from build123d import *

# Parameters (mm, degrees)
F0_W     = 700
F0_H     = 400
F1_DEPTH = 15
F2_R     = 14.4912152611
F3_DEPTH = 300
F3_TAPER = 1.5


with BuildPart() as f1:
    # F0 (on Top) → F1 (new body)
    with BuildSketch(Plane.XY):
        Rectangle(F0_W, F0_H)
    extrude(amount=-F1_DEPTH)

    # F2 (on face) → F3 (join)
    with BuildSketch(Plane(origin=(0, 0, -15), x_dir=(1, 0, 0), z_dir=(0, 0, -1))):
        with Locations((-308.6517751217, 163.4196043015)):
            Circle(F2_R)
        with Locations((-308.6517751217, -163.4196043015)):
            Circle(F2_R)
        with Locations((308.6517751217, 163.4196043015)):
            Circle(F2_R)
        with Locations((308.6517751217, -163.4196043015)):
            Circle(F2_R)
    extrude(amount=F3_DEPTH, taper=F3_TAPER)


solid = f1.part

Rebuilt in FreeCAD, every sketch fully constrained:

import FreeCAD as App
import Part
import Sketcher

V = App.Vector
Q = App.Units.Quantity

doc = App.newDocument("Part")
body = doc.addObject("PartDesign::Body", "Body")

sketch1 = doc.addObject("Sketcher::SketchObject", "Sketch")
body.addObject(sketch1)
sketch1.AttachmentSupport = (doc.XY_Plane, [""])
sketch1.MapMode = "FlatFace"
sketch1.addGeometry([
    Part.LineSegment(V(-350, 200, 0), V(-350, -200, 0)),
    Part.LineSegment(V(-350, -200, 0), V(350, -200, 0)),
    Part.LineSegment(V(350, -200, 0), V(350, 200, 0)),
    Part.LineSegment(V(350, 200, 0), V(-350, 200, 0)),
], False)
sketch1.addConstraint([
    Sketcher.Constraint("Coincident", 0, 2, 1, 1),
    Sketcher.Constraint("Coincident", 1, 2, 2, 1),
    Sketcher.Constraint("Coincident", 2, 2, 3, 1),
    Sketcher.Constraint("Coincident", 3, 2, 0, 1),
    Sketcher.Constraint("Vertical", 0),
    Sketcher.Constraint("Horizontal", 1),
    Sketcher.Constraint("Vertical", 2),
    Sketcher.Constraint("Horizontal", 3),
    Sketcher.Constraint("Symmetric", 0, 2, 2, 2, -1, 1),
    Sketcher.Constraint("DistanceX", 1, 1, 1, 2, Q("700 mm")),
    Sketcher.Constraint("DistanceY", 0, 2, 0, 1, Q("400 mm")),
])
pad1 = doc.addObject("PartDesign::Pad", "Pad")
body.addObject(pad1)
pad1.Profile = sketch1
pad1.Length = 15
pad1.Reversed = True

sketch2 = doc.addObject("Sketcher::SketchObject", "Sketch001")
body.addObject(sketch2)
sketch2.AttachmentSupport = (doc.XY_Plane, [""])
sketch2.MapMode = "FlatFace"
sketch2.AttachmentOffset = App.Placement(V(0, 0, -15), App.Rotation())
sketch2.addGeometry([
    Part.Circle(V(-309, -163, 0), V(0, 0, 1), 14),
    Part.Circle(V(-309, 163, 0), V(0, 0, 1), 14),
    Part.Circle(V(309, -163, 0), V(0, 0, 1), 14),
    Part.Circle(V(309, 163, 0), V(0, 0, 1), 14),
], False)
sketch2.addConstraint([
    Sketcher.Constraint("Equal", 0, 1),
    Sketcher.Constraint("Equal", 1, 2),
    Sketcher.Constraint("Equal", 2, 3),
    Sketcher.Constraint("Symmetric", 1, 3, 2, 3, -1, 1),
    Sketcher.Constraint("Symmetric", 0, 3, 3, 3, -1, 1),
    Sketcher.Constraint("Symmetric", 0, 3, 2, 3, -2),
    Sketcher.Constraint("Diameter", 0, Q("28.982431 mm")),
    Sketcher.Constraint("DistanceY", 0, 3, 1, 3, Q("326.839209 mm")),
    Sketcher.Constraint("DistanceX", 0, 3, 2, 3, Q("617.30355 mm")),
])
pad2 = doc.addObject("PartDesign::Pad", "Pad001")
body.addObject(pad2)
pad2.Profile = sketch2
pad2.Length = 300
pad2.Reversed = True
pad2.TaperAngle = -1.5

doc.recompute()
